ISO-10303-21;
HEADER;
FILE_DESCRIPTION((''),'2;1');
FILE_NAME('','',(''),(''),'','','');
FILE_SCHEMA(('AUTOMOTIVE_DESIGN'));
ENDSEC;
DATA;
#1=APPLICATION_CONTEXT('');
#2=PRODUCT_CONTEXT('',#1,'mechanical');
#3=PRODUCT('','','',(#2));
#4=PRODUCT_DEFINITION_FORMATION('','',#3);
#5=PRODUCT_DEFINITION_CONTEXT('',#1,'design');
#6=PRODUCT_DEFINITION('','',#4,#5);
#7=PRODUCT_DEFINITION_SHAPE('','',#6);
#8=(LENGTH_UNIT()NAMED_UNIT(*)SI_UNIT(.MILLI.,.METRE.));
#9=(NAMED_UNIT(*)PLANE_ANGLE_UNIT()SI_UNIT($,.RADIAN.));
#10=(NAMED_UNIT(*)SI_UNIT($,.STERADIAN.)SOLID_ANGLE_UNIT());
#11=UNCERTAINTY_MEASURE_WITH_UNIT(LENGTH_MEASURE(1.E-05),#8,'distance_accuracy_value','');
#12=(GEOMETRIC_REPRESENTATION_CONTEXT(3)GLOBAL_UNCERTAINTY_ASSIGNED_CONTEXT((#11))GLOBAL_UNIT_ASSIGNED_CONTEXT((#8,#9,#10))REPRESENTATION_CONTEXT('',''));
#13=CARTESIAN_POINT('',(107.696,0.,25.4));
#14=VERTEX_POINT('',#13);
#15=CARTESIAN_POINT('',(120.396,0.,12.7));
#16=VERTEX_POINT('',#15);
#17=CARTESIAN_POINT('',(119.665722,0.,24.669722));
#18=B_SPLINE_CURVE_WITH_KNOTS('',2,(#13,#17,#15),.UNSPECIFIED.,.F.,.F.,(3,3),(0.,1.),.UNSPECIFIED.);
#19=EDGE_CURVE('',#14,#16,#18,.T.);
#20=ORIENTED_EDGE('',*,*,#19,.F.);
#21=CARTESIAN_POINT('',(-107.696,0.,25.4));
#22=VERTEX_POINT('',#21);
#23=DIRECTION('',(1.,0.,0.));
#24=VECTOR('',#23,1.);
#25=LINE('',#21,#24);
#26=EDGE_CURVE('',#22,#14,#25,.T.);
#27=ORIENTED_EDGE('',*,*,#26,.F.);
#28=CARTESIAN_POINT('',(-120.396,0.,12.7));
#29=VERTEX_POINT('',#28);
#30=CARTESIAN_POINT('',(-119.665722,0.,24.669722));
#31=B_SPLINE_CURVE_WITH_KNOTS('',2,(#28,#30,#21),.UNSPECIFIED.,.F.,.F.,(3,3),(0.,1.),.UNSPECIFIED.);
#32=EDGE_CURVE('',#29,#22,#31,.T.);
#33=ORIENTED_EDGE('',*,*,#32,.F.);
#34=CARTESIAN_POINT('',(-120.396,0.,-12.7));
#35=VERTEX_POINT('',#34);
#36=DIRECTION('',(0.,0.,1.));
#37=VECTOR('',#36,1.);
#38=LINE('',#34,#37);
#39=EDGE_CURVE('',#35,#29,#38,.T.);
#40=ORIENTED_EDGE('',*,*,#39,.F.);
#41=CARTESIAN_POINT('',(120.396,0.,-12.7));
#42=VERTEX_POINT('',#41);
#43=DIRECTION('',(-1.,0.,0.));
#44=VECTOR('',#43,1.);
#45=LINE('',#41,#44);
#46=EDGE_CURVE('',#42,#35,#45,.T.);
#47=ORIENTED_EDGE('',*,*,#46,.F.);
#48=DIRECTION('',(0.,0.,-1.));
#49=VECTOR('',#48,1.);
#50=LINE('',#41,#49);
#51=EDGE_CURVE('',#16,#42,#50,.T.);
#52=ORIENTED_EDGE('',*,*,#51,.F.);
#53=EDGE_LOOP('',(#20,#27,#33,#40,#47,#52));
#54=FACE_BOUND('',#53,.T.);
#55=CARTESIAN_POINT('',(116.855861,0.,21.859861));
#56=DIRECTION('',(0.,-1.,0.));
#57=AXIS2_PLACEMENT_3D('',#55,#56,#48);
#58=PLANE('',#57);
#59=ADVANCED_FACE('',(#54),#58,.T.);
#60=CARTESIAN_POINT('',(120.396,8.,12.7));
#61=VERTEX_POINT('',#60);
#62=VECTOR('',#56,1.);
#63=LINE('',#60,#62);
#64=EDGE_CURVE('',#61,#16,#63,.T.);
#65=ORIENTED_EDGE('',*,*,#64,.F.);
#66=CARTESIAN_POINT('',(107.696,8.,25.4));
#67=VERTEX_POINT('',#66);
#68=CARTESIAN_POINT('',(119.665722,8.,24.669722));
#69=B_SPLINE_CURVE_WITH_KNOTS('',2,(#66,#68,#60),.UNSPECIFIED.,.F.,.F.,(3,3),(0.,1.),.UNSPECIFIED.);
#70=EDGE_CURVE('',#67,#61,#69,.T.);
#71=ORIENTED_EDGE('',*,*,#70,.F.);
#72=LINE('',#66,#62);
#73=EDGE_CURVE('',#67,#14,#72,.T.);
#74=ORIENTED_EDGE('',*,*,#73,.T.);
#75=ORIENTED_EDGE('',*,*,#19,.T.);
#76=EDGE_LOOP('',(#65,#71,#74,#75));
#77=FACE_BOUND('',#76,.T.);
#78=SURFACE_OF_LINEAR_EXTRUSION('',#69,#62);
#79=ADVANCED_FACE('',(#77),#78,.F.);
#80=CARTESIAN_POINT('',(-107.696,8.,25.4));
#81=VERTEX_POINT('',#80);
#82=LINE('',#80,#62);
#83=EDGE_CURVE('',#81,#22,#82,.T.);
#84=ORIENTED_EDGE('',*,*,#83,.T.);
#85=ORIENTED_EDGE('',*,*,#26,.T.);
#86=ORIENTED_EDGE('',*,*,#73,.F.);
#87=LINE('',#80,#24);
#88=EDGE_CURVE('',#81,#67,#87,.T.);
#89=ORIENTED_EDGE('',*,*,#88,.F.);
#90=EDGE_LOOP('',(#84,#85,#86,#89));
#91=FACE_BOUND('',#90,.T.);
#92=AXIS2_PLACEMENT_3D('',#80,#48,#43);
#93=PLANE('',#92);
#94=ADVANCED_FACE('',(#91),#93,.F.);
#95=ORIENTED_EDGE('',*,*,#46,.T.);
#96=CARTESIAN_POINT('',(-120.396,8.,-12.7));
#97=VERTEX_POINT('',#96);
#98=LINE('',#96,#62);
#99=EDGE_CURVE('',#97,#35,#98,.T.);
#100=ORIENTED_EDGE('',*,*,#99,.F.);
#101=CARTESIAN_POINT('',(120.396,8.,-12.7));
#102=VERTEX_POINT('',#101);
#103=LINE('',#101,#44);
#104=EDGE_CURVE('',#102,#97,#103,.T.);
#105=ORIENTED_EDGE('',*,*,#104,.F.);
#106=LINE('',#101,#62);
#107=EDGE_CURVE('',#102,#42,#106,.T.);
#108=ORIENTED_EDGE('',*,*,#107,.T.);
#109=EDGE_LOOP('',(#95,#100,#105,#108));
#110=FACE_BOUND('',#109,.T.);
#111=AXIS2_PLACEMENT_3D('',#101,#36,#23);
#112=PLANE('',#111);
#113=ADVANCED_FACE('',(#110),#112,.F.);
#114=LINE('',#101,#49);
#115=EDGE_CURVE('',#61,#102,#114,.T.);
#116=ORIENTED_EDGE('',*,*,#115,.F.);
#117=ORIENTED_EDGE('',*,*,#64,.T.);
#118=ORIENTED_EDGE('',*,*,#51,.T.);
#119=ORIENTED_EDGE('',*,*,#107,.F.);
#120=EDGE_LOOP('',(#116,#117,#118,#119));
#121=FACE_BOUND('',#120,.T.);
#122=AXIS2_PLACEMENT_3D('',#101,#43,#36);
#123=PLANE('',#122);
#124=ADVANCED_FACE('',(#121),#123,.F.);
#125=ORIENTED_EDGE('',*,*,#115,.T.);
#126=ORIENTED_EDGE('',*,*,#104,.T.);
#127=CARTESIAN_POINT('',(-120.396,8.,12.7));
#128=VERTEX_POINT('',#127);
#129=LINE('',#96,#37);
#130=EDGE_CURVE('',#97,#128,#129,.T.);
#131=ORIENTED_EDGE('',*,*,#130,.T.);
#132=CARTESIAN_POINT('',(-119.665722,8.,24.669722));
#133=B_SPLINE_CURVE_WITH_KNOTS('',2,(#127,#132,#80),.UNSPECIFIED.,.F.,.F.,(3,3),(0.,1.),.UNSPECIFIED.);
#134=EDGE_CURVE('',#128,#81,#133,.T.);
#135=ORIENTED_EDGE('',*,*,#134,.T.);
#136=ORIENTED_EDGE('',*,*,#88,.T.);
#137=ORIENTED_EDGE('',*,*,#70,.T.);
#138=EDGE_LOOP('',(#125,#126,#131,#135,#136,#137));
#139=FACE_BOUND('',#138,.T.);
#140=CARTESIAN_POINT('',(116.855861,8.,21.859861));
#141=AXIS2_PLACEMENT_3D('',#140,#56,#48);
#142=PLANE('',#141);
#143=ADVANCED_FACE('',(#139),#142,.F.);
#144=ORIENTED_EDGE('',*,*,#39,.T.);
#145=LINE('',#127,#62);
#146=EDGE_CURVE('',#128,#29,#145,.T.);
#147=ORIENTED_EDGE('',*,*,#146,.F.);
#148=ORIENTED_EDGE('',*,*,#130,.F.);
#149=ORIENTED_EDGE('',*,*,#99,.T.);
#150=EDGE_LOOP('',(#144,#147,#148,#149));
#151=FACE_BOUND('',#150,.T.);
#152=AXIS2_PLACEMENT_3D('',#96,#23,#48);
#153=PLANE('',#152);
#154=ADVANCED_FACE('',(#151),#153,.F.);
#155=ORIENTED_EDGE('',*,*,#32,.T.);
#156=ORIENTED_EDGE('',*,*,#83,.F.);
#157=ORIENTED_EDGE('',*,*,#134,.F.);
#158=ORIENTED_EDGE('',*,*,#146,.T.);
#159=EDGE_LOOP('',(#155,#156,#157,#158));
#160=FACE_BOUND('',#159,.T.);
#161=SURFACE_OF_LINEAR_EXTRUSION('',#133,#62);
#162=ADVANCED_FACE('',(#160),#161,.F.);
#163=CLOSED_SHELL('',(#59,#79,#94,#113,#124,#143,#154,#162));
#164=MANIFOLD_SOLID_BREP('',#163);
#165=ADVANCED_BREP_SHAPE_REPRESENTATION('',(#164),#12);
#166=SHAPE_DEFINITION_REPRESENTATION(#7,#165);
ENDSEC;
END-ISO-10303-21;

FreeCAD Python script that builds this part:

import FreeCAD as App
import Part
import Sketcher

V = App.Vector
Q = App.Units.Quantity

doc = App.newDocument("Part")
body = doc.addObject("PartDesign::Body", "Body")

# Sketch on XZ plane
sketch1 = body.newObject("Sketcher::SketchObject", "Sketch")
sketch1.AttachmentSupport = (doc.getObject("XZ_Plane"), [""])
sketch1.MapMode = "FlatFace"
sketch1.addGeometry([
    Part.LineSegment(V(-107.696, 25.4, 0), V(107.696, 25.4, 0)),  # 0
    Part.BSplineCurve([V(107.696, 25.4, 0), V(119.665722, 24.669722, 0), V(120.396, 12.7, 0)], [3, 3], [0, 1], False, 2, [1, 1, 1], False),  # 1
    Part.LineSegment(V(120.396, 12.7, 0), V(120.396, -12.7, 0)),  # 2
    Part.LineSegment(V(120.396, -12.7, 0), V(-120.396, -12.7, 0)),  # 3
    Part.LineSegment(V(-120.396, -12.7, 0), V(-120.396, 12.7, 0)),  # 4
    Part.BSplineCurve([V(-107.696, 25.4, 0), V(-119.665722, 24.669722, 0), V(-120.396, 12.7, 0)], [3, 3], [0, 1], False, 2, [1, 1, 1], False),  # 5
], False)
sketch1.addConstraint([
    Sketcher.Constraint("Block", 1),
    Sketcher.Constraint("Block", 5),
    Sketcher.Constraint("Coincident", 0, 2, 1, 1),
    Sketcher.Constraint("Coincident", 1, 2, 2, 1),
    Sketcher.Constraint("Coincident", 2, 2, 3, 1),
    Sketcher.Constraint("Coincident", 3, 2, 4, 1),
    Sketcher.Constraint("Coincident", 4, 2, 5, 2),
    Sketcher.Constraint("Coincident", 5, 1, 0, 1),
    Sketcher.Constraint("Vertical", 2),
    Sketcher.Constraint("Horizontal", 3),
    Sketcher.Constraint("Vertical", 4),
    Sketcher.Constraint("DistanceY", 2, 2, 2, 1, Q("1 in")),
])
pad1 = body.newObject("PartDesign::Pad", "Pad")
pad1.Profile = sketch1
pad1.Length = 8
pad1.Reversed = True

doc.recompute()
